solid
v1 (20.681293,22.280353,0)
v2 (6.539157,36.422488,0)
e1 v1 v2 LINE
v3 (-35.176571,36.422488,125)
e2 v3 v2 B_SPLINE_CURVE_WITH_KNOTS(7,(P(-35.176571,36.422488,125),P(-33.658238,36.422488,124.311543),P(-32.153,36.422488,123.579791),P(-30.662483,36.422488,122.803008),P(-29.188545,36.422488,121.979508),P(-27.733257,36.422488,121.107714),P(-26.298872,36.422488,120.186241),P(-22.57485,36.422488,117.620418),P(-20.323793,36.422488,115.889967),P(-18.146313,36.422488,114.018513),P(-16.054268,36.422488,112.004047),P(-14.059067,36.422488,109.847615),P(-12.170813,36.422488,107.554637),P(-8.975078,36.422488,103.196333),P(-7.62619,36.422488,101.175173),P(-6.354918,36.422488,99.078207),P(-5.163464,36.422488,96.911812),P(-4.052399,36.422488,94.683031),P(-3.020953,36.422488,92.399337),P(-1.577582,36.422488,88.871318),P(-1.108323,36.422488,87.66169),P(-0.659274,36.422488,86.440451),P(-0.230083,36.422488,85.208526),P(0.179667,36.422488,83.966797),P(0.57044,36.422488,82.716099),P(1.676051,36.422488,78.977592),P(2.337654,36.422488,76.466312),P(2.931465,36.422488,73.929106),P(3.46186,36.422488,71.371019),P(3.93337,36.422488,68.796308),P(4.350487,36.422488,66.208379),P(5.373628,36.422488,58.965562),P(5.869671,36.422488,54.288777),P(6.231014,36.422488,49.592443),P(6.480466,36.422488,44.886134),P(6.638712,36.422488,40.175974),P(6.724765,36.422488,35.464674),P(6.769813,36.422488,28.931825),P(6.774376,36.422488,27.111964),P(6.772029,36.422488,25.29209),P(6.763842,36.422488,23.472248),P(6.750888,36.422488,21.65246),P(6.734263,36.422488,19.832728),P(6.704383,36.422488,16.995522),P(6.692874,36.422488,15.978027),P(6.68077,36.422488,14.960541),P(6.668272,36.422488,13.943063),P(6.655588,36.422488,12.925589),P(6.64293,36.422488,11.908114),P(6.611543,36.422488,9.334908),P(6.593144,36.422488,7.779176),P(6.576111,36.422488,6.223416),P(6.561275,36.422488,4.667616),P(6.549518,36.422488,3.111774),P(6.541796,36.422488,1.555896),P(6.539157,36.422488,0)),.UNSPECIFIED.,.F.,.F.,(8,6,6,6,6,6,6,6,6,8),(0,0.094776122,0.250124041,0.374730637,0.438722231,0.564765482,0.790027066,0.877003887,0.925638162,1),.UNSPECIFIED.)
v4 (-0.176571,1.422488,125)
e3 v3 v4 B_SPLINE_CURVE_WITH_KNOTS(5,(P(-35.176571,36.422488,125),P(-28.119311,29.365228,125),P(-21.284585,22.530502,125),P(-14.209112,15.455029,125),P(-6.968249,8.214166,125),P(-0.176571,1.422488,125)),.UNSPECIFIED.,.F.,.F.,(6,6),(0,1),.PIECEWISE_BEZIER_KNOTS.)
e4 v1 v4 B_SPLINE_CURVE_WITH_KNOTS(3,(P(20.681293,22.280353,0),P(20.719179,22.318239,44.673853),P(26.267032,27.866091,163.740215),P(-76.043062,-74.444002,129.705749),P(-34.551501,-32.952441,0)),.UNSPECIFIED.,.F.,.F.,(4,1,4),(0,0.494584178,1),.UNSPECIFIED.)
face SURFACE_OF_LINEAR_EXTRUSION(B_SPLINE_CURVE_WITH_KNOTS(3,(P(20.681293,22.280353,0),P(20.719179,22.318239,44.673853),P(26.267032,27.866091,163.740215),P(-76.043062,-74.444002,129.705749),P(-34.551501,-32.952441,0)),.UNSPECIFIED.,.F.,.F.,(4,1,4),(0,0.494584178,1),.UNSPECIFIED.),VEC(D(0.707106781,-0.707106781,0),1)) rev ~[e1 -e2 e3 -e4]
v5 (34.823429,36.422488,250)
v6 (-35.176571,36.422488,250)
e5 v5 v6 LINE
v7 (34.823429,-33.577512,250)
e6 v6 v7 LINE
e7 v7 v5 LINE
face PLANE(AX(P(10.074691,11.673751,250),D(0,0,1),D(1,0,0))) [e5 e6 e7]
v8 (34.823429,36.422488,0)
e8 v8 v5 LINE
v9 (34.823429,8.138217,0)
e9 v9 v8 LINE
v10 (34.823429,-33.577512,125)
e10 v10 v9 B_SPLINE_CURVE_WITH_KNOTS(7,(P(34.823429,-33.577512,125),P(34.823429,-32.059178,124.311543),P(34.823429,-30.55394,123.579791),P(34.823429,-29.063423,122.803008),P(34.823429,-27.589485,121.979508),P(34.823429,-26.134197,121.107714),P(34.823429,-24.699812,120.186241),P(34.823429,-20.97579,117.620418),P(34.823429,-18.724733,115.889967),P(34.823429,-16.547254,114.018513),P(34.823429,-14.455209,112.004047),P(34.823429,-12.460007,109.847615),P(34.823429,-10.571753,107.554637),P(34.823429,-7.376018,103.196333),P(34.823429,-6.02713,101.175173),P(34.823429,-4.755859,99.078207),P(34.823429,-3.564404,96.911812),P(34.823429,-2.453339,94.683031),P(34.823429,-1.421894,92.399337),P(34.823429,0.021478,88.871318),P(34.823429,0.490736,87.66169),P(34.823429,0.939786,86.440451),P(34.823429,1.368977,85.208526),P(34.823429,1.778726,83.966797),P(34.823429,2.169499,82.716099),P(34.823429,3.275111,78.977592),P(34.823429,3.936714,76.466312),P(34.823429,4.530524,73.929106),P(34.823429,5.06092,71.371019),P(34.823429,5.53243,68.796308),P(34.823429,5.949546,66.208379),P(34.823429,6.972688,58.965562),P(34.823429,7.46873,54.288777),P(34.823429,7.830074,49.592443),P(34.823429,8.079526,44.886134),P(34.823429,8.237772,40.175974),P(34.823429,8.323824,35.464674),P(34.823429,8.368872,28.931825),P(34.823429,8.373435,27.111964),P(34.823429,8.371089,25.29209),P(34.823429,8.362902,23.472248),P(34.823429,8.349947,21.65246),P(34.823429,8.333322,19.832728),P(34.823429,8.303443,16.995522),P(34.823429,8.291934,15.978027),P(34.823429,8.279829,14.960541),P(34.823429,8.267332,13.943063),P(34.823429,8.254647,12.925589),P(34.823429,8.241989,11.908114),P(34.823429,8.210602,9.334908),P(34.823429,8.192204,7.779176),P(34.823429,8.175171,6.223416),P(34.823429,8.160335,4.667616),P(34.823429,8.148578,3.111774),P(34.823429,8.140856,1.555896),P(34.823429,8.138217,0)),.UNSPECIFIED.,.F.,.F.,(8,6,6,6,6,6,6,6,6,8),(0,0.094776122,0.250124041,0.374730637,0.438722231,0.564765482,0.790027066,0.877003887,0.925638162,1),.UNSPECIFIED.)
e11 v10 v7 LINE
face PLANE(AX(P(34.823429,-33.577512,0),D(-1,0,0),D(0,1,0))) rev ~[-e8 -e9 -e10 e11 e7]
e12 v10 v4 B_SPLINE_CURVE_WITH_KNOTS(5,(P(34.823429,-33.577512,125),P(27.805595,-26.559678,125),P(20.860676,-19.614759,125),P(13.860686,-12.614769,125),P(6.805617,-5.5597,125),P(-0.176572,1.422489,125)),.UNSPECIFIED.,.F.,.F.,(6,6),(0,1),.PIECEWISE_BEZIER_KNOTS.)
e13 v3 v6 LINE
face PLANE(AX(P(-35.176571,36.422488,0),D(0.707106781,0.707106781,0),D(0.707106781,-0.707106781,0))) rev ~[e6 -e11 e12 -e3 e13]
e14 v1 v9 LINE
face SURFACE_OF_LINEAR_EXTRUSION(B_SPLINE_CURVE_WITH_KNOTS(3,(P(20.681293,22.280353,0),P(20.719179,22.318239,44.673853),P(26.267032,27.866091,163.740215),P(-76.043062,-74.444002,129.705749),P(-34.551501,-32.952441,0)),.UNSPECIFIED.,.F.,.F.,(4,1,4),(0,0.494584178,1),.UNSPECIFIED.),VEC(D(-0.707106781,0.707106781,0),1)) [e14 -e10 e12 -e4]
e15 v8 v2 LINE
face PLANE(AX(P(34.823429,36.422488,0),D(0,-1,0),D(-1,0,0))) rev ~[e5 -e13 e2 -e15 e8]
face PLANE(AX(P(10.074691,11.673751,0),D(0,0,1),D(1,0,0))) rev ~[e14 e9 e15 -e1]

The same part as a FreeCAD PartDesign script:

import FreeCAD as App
import Part
import Sketcher


def add_polygon(sketch, points):
    """Adds a closed chain of lines whose ends are joined by coincident constraints."""
    first, n = sketch.GeometryCount, len(points)
    for a, b in zip(points, points[1:] + points[:1]):
        sketch.addGeometry(Part.LineSegment(App.Vector(*a, 0), App.Vector(*b, 0)), False)
    for i in range(n):
        sketch.addConstraint(Sketcher.Constraint("Coincident", first + i, 2, first + (i + 1) % n, 1))

doc = App.newDocument("Part")
params = doc.addObject("Spreadsheet::Sheet", "Params")
for row, (alias, value) in enumerate([
    ("sketch1_width", "70 mm"),
    ("pad1_length", "250 mm"),
], start=1):
    params.set(f"A{row}", alias)
    params.set(f"B{row}", "=" + value)
    params.setAlias(f"B{row}", alias)

body = doc.addObject("PartDesign::Body", "Body")

# Sketch on XY plane
sketch1 = doc.addObject("Sketcher::SketchObject", "Sketch")
body.addObject(sketch1)
sketch1.AttachmentSupport = (doc.XY_Plane, [""])
sketch1.MapMode = "FlatFace"
add_polygon(sketch1, [(35, 36), (-35, 36), (35, -34)])  # lines 0-2
sketch1.addConstraint([
    Sketcher.Constraint("Horizontal", 0),
    Sketcher.Constraint("Vertical", 2),
    Sketcher.Constraint("Equal", 0, 2),
    Sketcher.Constraint("DistanceX", 0, 2, 0, 1, 70.0),
    Sketcher.Constraint("DistanceX", 0, 2, -1, 1, 35.176571),
    Sketcher.Constraint("DistanceY", -1, 1, 0, 2, 36.422488),
])
sketch1.setExpression("Constraints[6]", "Params.sketch1_width")
pad1 = doc.addObject("PartDesign::Pad", "Pad")
body.addObject(pad1)
pad1.Profile = sketch1
pad1.setExpression("Length", "Params.pad1_length")

# Sketch on an angled plane
sketch2 = doc.addObject("Sketcher::SketchObject", "Sketch001")
body.addObject(sketch2)
sketch2.Placement = App.Placement(App.Vector(-0.79953, 0.79953, 0), App.Rotation(App.Vector(-0.707106781, -0.707106781, 0), App.Vector(0, 0, 0.999999999), App.Vector(-0.707106781, 0.707106781, 0), "ZXY"))
sketch2.addGeometry([
    Part.BSplineCurve([App.Vector(-30.378471, 0, 0), App.Vector(-30.43205, 44.673853, 0), App.Vector(-38.277898, 163.740215, 0), App.Vector(106.410423, 129.705749, 0), App.Vector(47.732495, 0, 0)], [4, 1, 4], [0, 0.494584178, 1], False, 3, [1, 1, 1, 1, 1], False),
    Part.LineSegment(App.Vector(-30.378471, 0, 0), App.Vector(47.732495, 0, 0)),
], False)
sketch2.addConstraint([
    Sketcher.Constraint("Block", 0),
    Sketcher.Constraint("Coincident", 0, 1, 1, 1),
    Sketcher.Constraint("Coincident", 1, 2, 0, 2),
])
pocket1 = doc.addObject("PartDesign::Pocket", "Pocket")
body.addObject(pocket1)
pocket1.Profile = sketch2
pocket1.Type = "ThroughAll"
pocket1.Midplane = True

doc.recompute()
